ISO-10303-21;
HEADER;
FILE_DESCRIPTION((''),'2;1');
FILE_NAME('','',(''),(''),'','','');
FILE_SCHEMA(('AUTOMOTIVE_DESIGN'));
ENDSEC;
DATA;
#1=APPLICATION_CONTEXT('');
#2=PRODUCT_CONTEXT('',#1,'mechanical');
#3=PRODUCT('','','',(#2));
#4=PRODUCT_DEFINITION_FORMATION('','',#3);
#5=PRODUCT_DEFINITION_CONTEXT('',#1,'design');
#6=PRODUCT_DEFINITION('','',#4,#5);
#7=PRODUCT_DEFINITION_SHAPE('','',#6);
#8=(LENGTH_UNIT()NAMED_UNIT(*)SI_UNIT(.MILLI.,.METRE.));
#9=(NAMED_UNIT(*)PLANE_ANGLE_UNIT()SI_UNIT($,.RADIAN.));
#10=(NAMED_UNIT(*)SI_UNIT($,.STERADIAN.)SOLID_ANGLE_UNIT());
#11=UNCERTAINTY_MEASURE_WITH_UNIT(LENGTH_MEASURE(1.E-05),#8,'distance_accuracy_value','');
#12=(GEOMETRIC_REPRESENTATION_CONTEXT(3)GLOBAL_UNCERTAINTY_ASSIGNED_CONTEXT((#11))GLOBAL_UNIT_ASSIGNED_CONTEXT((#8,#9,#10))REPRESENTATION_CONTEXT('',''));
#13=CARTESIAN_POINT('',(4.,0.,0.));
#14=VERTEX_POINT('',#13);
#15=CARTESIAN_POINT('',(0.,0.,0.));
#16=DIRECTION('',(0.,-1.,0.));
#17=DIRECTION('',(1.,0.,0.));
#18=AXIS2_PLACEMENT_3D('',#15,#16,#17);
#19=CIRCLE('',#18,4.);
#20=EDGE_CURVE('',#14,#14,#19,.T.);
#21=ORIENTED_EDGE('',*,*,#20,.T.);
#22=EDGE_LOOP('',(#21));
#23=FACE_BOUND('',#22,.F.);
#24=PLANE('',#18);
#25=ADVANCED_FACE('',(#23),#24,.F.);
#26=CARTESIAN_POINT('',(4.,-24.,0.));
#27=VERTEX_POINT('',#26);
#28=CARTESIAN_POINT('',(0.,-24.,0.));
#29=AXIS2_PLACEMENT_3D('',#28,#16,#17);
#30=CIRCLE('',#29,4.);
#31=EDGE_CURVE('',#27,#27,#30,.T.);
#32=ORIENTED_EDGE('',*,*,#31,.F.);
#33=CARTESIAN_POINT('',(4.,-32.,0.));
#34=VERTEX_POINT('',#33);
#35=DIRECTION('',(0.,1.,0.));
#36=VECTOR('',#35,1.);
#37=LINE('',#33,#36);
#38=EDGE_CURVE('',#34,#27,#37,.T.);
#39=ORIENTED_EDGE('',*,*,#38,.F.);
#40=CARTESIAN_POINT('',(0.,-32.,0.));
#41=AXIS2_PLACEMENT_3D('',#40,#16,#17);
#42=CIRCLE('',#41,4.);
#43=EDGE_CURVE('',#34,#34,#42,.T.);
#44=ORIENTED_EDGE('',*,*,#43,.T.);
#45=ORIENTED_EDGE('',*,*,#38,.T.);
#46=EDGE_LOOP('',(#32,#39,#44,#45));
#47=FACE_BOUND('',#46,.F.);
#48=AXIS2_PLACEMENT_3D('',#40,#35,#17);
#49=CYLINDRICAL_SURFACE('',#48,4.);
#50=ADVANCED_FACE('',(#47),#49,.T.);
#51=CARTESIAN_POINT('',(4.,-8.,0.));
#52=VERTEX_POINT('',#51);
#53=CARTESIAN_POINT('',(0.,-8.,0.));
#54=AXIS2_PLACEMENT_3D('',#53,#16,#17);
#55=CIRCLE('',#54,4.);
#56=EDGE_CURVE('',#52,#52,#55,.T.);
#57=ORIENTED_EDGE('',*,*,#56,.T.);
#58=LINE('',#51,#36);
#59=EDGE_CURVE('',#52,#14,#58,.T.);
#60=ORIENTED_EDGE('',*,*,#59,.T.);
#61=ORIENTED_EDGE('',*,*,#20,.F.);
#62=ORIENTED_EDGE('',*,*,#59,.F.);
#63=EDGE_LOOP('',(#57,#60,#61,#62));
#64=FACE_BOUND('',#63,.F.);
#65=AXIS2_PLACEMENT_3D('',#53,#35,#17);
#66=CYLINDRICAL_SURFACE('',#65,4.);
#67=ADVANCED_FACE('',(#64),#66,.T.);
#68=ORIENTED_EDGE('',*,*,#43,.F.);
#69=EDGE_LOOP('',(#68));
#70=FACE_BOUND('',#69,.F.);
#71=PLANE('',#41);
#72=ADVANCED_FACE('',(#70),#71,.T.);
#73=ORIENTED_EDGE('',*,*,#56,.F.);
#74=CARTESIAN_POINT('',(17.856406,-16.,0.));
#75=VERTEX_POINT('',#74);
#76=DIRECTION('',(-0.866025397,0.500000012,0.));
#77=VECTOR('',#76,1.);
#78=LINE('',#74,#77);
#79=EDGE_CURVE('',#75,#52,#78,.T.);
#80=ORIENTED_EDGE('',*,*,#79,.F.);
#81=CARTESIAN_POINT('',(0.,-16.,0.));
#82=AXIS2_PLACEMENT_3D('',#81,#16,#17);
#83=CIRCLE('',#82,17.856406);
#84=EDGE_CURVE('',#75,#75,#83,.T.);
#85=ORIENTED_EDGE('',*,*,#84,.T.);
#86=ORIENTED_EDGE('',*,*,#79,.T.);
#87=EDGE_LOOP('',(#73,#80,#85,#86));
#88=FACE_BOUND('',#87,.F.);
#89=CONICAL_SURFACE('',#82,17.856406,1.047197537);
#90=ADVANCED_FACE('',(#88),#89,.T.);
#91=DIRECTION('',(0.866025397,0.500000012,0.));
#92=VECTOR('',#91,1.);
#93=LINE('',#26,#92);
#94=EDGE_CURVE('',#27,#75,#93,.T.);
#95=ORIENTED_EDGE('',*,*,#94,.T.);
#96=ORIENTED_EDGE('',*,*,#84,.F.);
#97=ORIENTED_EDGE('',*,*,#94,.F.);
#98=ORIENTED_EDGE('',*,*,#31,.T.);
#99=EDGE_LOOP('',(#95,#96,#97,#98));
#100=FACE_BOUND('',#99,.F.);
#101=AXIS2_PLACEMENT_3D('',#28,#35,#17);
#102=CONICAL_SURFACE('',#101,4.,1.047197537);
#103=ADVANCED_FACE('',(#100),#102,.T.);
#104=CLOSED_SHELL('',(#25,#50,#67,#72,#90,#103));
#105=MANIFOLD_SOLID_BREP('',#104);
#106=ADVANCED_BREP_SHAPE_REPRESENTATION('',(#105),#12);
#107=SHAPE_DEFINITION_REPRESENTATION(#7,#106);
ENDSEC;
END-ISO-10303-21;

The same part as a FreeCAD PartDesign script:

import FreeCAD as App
import Part
import Sketcher
from FreeCAD import Vector
Q = App.Units.Quantity

doc = App.newDocument("Part")
body = doc.addObject("PartDesign::Body", "Body")

# Sketch on XY plane
sketch1 = body.newObject("Sketcher::SketchObject", "Sketch")
sketch1.AttachmentSupport = (doc.getObject("XY_Plane"), [""])
sketch1.MapMode = "FlatFace"
sketch1.addGeometry([
    Part.LineSegment(Vector(4, 0, 0), Vector(0, 0, 0)),  # 0
    Part.LineSegment(Vector(0, 0, 0), Vector(0, -32, 0)),  # 1
    Part.LineSegment(Vector(0, -32, 0), Vector(4, -32, 0)),  # 2
    Part.LineSegment(Vector(4, -32, 0), Vector(4, -24, 0)),  # 3
    Part.LineSegment(Vector(4, -24, 0), Vector(17.9, -16, 0)),  # 4
    Part.LineSegment(Vector(17.9, -16, 0), Vector(4, -8, 0)),  # 5
    Part.LineSegment(Vector(4, -8, 0), Vector(4, 0, 0)),  # 6
], False)
sketch1.addConstraint([
    Sketcher.Constraint("Coincident", 0, 2, 1, 1),
    Sketcher.Constraint("Coincident", 1, 2, 2, 1),
    Sketcher.Constraint("Coincident", 2, 2, 3, 1),
    Sketcher.Constraint("Coincident", 3, 2, 4, 1),
    Sketcher.Constraint("Coincident", 4, 2, 5, 1),
    Sketcher.Constraint("Coincident", 5, 2, 6, 1),
    Sketcher.Constraint("Coincident", 6, 2, 0, 1),
    Sketcher.Constraint("Horizontal", 0),
    Sketcher.Constraint("Vertical", 1),
    Sketcher.Constraint("Horizontal", 2),
    Sketcher.Constraint("Vertical", 3),
    Sketcher.Constraint("Vertical", 6),
    Sketcher.Constraint("Coincident", 0, 2, -1, 1),
    Sketcher.Constraint("Vertical", 3, 2, 5, 2),
    Sketcher.Constraint("Equal", 3, 6),
    Sketcher.Constraint("Equal", 4, 5),
    Sketcher.Constraint("DistanceX", 0, 2, 0, 1, Q("4 mm")),
    Sketcher.Constraint("DistanceY", 1, 2, 1, 1, Q("32 mm")),
    Sketcher.Constraint("DistanceY", 3, 1, 3, 2, Q("8 mm")),
    Sketcher.Constraint("Angle", 4, Q("30.000001 deg")),
])
revolution = body.newObject("PartDesign::Revolution", "Revolution")
revolution.Profile = sketch1
revolution.ReferenceAxis = (sketch1, ["V_Axis"])
revolution.Angle = 360

doc.recompute()
